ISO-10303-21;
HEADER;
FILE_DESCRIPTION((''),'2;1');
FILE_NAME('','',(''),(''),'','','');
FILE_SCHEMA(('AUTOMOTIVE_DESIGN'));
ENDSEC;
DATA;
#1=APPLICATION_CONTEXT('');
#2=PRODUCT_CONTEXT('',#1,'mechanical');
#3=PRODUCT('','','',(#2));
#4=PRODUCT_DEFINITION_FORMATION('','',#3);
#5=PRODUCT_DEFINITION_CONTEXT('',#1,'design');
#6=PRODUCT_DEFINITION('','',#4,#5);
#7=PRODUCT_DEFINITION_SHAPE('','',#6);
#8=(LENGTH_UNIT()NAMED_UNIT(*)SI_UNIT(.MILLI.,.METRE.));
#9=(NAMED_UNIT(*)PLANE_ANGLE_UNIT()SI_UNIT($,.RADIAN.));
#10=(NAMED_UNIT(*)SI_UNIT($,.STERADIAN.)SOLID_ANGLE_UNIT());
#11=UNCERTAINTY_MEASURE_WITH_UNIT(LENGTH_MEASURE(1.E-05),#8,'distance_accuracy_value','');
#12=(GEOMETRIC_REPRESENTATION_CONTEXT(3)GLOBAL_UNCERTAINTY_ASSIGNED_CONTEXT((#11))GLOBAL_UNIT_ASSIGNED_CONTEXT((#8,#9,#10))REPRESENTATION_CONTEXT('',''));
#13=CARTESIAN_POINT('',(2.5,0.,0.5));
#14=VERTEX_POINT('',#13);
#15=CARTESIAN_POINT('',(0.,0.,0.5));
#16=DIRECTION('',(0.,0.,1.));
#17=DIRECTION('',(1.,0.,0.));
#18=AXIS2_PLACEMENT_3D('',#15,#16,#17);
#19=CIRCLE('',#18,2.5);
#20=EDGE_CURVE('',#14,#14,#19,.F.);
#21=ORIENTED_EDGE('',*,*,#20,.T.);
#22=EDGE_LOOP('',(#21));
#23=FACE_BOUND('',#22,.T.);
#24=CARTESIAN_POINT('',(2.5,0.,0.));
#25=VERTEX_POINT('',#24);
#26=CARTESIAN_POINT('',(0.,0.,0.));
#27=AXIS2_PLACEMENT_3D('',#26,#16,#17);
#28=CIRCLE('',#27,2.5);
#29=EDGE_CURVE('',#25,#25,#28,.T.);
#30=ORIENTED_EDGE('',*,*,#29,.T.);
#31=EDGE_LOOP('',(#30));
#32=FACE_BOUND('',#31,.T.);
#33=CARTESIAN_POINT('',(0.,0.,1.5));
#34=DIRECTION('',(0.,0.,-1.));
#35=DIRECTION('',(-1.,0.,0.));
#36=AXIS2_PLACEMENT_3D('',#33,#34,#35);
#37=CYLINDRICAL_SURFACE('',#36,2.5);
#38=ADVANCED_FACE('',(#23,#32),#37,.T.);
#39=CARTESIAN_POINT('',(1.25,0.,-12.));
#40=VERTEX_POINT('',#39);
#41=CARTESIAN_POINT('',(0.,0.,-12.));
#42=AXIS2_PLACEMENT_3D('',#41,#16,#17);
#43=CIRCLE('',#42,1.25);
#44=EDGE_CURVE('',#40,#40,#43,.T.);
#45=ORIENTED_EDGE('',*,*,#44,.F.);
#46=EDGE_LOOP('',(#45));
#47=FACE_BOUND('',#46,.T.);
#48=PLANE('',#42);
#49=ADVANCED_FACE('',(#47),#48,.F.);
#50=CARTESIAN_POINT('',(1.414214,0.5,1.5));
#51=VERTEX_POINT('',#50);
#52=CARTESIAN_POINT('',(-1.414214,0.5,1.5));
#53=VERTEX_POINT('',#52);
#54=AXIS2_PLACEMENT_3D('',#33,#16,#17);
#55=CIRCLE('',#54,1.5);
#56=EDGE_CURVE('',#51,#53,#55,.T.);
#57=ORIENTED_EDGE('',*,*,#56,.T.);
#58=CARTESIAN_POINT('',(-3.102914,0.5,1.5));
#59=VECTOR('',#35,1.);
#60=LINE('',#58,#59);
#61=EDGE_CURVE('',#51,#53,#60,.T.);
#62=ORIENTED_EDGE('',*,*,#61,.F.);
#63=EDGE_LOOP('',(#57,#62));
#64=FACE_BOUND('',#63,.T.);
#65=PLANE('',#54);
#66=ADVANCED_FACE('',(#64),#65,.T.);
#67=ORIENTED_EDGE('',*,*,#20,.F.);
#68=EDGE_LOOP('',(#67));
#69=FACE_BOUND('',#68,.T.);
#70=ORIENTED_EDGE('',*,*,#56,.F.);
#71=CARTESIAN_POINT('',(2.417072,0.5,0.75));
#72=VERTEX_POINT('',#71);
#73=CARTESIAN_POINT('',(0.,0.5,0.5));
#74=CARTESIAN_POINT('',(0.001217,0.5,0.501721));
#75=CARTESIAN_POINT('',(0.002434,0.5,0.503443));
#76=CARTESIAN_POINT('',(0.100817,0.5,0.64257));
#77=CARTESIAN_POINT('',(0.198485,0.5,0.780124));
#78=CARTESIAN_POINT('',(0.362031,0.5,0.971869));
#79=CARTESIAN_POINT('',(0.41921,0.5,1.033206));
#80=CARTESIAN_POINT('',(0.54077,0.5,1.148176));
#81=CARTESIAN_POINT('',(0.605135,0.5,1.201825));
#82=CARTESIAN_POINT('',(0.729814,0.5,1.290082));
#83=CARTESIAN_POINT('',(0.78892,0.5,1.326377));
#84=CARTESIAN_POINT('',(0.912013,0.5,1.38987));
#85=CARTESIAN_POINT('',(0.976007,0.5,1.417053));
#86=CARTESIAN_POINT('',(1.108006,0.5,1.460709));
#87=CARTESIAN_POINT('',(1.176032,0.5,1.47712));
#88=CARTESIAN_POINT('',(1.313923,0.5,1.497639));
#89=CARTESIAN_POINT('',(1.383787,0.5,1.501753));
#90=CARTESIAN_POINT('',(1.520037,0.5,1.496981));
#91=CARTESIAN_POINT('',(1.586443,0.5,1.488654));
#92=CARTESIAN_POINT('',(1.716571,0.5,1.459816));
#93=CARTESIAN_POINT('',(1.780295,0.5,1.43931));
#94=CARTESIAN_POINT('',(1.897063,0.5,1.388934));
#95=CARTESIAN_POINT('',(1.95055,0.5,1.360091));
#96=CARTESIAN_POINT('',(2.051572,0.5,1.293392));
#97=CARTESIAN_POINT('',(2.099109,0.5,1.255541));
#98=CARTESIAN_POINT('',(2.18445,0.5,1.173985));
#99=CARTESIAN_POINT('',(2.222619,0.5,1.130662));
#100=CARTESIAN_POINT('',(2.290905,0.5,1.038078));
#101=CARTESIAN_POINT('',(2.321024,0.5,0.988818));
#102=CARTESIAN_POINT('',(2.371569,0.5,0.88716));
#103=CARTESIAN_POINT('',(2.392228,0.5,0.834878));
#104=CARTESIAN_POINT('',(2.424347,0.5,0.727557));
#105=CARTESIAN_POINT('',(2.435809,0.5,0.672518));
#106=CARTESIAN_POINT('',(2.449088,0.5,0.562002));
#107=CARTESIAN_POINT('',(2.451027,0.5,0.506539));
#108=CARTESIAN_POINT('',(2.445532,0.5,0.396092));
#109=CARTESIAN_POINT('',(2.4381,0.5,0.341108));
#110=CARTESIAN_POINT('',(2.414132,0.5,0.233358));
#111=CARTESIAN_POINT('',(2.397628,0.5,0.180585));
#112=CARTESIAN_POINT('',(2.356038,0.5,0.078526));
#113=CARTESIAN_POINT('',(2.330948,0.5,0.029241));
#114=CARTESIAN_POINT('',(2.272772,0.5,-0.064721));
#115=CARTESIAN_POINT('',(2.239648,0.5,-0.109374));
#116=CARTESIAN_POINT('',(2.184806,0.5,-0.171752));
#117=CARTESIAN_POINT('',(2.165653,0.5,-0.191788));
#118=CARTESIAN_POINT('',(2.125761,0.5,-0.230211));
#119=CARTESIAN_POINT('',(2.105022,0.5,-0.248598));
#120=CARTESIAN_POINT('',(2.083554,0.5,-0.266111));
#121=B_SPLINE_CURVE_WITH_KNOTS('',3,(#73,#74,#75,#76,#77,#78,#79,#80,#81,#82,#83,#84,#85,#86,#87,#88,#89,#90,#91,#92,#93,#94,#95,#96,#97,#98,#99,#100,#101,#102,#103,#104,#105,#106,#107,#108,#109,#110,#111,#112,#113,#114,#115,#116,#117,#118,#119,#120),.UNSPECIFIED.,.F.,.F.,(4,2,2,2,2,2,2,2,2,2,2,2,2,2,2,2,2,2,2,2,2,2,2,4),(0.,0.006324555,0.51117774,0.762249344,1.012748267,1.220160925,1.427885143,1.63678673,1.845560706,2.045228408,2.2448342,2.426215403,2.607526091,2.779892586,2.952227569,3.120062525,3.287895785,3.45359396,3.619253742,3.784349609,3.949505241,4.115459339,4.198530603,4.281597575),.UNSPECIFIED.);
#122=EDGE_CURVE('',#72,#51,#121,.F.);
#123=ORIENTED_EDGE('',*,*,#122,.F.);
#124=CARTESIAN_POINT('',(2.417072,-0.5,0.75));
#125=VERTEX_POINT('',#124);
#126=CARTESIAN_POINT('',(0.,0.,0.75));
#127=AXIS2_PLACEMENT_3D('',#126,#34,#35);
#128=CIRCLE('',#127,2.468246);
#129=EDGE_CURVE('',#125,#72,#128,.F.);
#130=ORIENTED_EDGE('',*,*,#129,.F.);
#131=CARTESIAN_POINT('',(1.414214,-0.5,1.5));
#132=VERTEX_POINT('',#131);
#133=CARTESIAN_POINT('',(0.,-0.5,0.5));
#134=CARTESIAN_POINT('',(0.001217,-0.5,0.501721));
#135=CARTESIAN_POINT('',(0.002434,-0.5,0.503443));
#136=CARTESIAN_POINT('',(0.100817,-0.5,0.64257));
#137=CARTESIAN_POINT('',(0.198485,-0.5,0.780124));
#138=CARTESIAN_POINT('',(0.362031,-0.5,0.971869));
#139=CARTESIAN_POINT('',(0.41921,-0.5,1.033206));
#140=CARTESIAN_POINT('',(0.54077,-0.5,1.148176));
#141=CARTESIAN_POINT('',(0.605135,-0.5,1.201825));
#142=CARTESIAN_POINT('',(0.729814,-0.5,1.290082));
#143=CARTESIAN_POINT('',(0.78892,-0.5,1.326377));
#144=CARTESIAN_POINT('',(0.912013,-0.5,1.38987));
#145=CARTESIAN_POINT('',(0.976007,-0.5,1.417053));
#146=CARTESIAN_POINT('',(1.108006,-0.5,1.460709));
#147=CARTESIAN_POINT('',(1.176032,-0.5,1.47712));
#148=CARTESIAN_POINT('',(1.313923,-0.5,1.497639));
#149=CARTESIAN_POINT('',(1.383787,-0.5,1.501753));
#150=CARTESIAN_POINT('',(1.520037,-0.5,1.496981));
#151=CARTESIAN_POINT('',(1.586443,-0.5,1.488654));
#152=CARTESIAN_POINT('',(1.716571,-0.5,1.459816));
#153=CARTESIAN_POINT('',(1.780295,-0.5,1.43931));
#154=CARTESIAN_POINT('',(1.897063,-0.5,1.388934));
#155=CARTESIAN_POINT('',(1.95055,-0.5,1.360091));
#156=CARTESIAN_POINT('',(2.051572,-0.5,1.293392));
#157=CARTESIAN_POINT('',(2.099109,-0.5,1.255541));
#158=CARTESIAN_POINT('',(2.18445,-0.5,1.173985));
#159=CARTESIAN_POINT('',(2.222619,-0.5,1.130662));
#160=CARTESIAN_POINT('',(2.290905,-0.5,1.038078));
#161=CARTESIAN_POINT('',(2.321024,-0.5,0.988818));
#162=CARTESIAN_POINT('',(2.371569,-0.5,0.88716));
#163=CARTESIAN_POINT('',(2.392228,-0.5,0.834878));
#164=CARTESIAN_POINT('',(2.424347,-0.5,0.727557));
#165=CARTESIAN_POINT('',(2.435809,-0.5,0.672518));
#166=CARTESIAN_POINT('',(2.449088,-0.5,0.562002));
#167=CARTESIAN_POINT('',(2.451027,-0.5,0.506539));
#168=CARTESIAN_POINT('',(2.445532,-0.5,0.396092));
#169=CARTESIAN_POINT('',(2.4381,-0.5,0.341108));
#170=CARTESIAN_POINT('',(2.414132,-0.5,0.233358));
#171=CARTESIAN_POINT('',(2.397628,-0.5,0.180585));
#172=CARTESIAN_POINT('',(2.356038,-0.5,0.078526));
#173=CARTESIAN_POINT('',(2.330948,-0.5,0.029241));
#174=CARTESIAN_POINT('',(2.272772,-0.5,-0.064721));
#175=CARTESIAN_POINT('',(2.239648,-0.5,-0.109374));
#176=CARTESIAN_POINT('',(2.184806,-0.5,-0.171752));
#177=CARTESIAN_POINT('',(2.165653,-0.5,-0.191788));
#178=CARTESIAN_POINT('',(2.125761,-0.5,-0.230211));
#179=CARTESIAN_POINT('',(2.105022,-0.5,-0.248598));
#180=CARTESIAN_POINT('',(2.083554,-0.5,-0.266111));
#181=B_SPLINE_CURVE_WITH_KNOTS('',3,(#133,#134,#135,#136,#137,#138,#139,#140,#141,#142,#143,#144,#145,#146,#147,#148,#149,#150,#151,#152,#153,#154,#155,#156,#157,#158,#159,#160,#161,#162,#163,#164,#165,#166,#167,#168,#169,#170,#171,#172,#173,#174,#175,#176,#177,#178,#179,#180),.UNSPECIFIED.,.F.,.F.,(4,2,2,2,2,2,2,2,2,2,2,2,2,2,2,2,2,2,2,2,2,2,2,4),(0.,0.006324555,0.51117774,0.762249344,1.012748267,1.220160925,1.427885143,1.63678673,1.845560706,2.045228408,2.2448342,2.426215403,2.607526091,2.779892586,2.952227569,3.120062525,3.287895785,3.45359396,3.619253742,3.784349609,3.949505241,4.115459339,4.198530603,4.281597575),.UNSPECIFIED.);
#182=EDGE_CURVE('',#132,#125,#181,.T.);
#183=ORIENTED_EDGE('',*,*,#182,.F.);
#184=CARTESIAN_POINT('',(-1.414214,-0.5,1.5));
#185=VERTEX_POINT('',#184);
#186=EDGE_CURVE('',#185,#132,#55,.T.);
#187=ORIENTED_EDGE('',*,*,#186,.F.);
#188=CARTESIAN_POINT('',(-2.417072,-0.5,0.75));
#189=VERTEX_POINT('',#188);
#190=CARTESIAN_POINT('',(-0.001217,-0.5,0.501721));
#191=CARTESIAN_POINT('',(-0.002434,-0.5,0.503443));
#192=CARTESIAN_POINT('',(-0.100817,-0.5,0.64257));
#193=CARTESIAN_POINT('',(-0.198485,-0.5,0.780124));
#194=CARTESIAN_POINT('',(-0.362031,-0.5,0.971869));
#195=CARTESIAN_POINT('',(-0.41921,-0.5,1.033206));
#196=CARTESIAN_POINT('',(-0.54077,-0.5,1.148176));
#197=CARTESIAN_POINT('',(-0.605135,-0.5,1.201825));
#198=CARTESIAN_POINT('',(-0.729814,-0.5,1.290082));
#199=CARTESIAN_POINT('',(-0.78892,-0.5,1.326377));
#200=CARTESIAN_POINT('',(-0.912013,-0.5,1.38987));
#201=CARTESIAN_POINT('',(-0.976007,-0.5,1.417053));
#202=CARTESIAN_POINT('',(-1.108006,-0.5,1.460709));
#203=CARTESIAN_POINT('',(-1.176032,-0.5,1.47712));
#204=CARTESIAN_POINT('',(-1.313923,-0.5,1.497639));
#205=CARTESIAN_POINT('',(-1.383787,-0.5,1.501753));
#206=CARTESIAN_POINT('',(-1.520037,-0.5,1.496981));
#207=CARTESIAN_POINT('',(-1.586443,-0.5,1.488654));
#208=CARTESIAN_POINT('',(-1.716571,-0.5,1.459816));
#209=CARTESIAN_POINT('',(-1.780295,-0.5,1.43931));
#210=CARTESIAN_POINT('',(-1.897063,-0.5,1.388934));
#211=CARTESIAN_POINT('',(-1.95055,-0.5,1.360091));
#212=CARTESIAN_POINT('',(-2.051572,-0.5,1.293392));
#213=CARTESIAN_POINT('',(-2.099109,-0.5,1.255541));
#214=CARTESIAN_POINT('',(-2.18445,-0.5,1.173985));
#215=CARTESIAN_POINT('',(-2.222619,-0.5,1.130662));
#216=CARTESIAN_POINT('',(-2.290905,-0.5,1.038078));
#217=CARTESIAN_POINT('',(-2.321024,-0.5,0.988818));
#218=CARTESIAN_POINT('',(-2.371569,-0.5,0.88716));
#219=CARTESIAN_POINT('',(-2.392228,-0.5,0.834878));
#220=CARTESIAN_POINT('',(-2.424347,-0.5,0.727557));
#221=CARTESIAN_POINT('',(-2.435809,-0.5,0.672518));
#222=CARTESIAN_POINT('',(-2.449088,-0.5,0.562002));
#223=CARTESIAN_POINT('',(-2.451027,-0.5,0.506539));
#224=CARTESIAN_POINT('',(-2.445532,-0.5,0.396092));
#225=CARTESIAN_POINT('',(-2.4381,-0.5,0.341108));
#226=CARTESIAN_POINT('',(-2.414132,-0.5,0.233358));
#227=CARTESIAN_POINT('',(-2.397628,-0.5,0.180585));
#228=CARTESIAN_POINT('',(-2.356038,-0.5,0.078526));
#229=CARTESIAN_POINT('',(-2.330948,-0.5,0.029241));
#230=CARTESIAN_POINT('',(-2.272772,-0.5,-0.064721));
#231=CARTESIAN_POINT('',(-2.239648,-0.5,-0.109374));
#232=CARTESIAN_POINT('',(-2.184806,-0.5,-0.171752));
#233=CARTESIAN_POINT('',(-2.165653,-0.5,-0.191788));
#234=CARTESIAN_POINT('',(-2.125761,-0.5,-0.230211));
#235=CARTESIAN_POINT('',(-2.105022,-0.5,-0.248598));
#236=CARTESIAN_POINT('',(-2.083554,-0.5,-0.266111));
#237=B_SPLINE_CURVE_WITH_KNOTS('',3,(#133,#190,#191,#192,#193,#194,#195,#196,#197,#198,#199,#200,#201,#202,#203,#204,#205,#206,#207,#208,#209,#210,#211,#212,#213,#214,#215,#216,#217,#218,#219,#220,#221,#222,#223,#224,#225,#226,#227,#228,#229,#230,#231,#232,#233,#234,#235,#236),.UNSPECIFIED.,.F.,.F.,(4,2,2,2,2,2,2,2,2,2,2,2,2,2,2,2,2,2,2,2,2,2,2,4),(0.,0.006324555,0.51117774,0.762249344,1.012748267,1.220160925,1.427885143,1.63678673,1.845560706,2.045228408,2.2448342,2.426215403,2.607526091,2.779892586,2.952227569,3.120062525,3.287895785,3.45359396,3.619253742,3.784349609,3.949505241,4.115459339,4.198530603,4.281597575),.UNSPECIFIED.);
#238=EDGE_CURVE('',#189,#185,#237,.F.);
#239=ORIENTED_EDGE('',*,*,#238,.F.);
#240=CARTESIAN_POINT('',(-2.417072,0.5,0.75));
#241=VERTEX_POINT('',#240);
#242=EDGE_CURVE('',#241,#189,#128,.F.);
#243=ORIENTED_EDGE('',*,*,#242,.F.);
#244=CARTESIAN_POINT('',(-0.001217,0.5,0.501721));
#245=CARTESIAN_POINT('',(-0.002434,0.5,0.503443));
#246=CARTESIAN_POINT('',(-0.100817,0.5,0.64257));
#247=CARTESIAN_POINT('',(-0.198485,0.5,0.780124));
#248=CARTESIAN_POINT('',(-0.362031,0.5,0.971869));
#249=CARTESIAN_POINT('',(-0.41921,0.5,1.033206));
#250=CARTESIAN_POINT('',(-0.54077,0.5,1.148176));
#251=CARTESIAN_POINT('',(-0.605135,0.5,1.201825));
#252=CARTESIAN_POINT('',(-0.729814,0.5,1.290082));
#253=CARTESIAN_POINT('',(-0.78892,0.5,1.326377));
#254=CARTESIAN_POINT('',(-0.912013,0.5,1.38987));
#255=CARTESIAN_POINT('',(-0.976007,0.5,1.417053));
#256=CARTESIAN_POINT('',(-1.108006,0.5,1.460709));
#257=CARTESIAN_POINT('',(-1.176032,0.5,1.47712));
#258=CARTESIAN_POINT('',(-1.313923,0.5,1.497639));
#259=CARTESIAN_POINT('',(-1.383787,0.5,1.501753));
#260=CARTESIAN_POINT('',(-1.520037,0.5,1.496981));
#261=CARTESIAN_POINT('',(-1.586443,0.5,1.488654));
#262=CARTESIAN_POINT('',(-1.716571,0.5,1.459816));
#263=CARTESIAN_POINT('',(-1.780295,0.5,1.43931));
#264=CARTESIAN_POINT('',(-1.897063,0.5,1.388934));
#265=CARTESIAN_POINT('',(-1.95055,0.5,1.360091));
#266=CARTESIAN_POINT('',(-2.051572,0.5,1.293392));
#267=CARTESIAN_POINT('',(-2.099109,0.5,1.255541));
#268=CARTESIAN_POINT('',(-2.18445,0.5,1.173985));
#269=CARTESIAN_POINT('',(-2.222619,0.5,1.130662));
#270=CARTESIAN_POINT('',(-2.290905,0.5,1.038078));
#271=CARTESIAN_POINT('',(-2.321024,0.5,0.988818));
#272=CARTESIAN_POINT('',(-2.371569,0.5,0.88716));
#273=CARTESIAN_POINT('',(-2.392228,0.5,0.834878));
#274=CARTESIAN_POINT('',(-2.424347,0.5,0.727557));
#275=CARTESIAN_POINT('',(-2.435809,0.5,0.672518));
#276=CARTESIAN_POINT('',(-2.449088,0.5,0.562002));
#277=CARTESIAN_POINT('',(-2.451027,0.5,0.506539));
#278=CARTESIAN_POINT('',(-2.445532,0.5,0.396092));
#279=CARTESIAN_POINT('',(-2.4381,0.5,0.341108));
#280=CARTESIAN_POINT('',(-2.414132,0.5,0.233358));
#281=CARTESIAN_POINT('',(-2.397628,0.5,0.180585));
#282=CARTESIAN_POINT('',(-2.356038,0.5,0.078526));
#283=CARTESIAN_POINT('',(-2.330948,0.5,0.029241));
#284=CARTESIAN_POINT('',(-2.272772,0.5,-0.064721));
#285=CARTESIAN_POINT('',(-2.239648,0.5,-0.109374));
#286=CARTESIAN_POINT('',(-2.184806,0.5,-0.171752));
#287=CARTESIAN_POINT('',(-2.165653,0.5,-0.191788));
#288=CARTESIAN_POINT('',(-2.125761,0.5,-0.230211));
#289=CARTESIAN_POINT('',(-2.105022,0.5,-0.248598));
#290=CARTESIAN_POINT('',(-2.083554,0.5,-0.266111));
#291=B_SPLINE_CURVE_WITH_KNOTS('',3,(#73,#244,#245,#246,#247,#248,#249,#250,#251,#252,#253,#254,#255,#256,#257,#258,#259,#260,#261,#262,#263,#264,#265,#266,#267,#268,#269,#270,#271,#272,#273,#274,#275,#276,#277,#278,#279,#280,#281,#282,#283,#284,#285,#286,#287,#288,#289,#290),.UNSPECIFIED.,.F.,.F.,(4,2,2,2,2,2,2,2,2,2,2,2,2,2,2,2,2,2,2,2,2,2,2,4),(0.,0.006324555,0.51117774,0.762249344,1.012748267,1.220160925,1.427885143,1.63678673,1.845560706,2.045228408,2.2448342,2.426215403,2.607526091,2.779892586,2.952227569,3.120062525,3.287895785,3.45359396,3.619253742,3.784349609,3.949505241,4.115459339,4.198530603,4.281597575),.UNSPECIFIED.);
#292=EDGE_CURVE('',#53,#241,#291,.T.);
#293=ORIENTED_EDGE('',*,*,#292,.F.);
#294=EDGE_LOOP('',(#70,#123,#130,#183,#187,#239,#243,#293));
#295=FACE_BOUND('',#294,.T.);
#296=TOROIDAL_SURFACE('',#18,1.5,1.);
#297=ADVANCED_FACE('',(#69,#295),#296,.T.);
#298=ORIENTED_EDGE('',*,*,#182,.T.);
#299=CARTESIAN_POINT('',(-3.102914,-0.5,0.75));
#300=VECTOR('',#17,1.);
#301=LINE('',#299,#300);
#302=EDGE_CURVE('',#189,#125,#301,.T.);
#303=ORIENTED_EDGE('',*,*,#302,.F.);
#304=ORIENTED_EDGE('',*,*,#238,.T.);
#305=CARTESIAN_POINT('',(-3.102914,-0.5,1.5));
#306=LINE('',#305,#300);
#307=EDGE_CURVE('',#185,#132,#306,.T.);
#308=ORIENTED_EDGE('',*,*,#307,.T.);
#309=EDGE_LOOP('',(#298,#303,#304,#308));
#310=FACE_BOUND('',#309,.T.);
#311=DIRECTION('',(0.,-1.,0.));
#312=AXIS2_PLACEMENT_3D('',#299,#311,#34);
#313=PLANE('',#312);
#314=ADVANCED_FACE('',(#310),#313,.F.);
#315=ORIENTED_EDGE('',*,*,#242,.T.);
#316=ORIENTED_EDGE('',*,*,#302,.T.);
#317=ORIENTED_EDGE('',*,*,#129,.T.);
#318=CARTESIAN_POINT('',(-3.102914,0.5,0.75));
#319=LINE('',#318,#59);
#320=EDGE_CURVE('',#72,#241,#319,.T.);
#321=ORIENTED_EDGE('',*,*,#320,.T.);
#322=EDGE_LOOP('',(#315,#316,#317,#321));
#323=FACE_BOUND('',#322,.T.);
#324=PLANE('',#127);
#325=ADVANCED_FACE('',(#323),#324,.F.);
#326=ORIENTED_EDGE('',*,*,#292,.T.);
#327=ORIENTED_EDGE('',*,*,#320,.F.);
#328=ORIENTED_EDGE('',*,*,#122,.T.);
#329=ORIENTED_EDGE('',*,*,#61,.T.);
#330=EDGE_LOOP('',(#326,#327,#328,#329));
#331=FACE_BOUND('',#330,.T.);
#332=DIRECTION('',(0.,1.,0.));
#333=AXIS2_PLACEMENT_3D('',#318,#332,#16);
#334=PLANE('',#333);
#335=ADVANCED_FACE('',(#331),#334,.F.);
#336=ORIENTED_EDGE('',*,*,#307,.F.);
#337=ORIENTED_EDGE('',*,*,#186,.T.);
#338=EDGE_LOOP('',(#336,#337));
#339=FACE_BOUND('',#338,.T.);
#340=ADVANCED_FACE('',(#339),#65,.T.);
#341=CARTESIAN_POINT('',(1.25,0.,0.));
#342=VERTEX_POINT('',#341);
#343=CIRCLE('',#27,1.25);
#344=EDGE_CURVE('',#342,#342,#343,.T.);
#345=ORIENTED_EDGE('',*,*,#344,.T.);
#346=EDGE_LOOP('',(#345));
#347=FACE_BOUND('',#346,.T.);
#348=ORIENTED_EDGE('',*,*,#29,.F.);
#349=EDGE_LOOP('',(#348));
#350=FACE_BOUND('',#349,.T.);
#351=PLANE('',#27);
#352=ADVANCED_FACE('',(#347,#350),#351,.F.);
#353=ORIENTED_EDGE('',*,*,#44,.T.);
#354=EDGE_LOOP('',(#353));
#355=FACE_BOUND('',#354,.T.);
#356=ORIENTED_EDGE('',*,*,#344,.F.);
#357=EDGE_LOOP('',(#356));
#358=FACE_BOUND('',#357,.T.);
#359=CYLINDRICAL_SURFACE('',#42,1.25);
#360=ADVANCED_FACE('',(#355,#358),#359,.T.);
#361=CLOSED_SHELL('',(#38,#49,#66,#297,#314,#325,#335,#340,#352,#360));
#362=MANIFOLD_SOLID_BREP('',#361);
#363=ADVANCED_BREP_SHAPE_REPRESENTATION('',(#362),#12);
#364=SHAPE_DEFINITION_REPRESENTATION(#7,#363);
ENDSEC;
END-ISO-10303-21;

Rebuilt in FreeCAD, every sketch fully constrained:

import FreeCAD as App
import Part
import Sketcher


def edges_at(feature, points):
    """Names of the edges that pass closest to the given points."""
    edges = feature.Shape.Edges
    near = lambda p: min(range(len(edges)), key=lambda i: edges[i].distToShape(Part.Vertex(*p))[0])
    return sorted({f"Edge{near(p) + 1}" for p in points})

doc = App.newDocument("Part")
body = doc.addObject("PartDesign::Body", "Body")

# Sketch on XY plane
sketch1 = doc.addObject("Sketcher::SketchObject", "Sketch")
body.addObject(sketch1)
sketch1.AttachmentSupport = (doc.XY_Plane, [""])
sketch1.MapMode = "FlatFace"
sketch1.addGeometry(Part.Circle(App.Vector(0, 0, 0), App.Vector(0, 0, 1), 1.2), False)
sketch1.addConstraint([
    Sketcher.Constraint("Coincident", 0, 3, -1, 1),
    Sketcher.Constraint("Diameter", 0, 2.5),
])
pad1 = doc.addObject("PartDesign::Pad", "Pad")
body.addObject(pad1)
pad1.Profile = sketch1
pad1.Length = 12
pad1.Reversed = True

# Sketch on XY plane
sketch2 = doc.addObject("Sketcher::SketchObject", "Sketch001")
body.addObject(sketch2)
sketch2.AttachmentSupport = (doc.XY_Plane, [""])
sketch2.MapMode = "FlatFace"
sketch2.addGeometry(Part.Circle(App.Vector(0, 0, 0), App.Vector(0, 0, 1), 2.5), False)
sketch2.addConstraint([
    Sketcher.Constraint("Coincident", 0, 3, -1, 1),
    Sketcher.Constraint("Diameter", 0, 5.0),
])
pad2 = doc.addObject("PartDesign::Pad", "Pad001")
body.addObject(pad2)
pad2.Profile = sketch2
pad2.Length = 1.5
doc.recompute()

fillet = doc.addObject("PartDesign::Fillet", "Fillet")
body.addObject(fillet)
fillet.Base = (pad2, edges_at(pad2, [(-2.5, 0, 1.5)]))
fillet.Radius = 1

# Sketch on XY plane
sketch3 = doc.addObject("Sketcher::SketchObject", "Sketch002")
body.addObject(sketch3)
sketch3.AttachmentSupport = (doc.XY_Plane, [""])
sketch3.MapMode = "FlatFace"
sketch3.AttachmentOffset = App.Placement(App.Vector(0, 0, 1.5), App.Rotation())
sketch3.addGeometry([
    Part.LineSegment(App.Vector(-3.1, 0.5, 0), App.Vector(-3.1, -0.5, 0)),
    Part.LineSegment(App.Vector(-3.1, -0.5, 0), App.Vector(3, -0.5, 0)),
    Part.LineSegment(App.Vector(3, -0.5, 0), App.Vector(3, 0.5, 0)),
    Part.LineSegment(App.Vector(3, 0.5, 0), App.Vector(-3.1, 0.5, 0)),
], False)
sketch3.addConstraint([
    Sketcher.Constraint("Coincident", 0, 2, 1, 1),
    Sketcher.Constraint("Coincident", 1, 2, 2, 1),
    Sketcher.Constraint("Coincident", 2, 2, 3, 1),
    Sketcher.Constraint("Coincident", 3, 2, 0, 1),
    Sketcher.Constraint("Vertical", 0),
    Sketcher.Constraint("Horizontal", 1),
    Sketcher.Constraint("Vertical", 2),
    Sketcher.Constraint("Horizontal", 3),
    Sketcher.Constraint("DistanceY", 0, 2, 0, 1, 1.0),
    Sketcher.Constraint("DistanceY", 0, 2, -1, 1, 0.5),
    Sketcher.Constraint("DistanceX", 1, 1, 1, 2, 6.108208),
    Sketcher.Constraint("DistanceX", 0, 2, -1, 1, 3.102914),
])
pocket1 = doc.addObject("PartDesign::Pocket", "Pocket")
body.addObject(pocket1)
pocket1.Profile = sketch3
pocket1.Length = 0.75

doc.recompute()
